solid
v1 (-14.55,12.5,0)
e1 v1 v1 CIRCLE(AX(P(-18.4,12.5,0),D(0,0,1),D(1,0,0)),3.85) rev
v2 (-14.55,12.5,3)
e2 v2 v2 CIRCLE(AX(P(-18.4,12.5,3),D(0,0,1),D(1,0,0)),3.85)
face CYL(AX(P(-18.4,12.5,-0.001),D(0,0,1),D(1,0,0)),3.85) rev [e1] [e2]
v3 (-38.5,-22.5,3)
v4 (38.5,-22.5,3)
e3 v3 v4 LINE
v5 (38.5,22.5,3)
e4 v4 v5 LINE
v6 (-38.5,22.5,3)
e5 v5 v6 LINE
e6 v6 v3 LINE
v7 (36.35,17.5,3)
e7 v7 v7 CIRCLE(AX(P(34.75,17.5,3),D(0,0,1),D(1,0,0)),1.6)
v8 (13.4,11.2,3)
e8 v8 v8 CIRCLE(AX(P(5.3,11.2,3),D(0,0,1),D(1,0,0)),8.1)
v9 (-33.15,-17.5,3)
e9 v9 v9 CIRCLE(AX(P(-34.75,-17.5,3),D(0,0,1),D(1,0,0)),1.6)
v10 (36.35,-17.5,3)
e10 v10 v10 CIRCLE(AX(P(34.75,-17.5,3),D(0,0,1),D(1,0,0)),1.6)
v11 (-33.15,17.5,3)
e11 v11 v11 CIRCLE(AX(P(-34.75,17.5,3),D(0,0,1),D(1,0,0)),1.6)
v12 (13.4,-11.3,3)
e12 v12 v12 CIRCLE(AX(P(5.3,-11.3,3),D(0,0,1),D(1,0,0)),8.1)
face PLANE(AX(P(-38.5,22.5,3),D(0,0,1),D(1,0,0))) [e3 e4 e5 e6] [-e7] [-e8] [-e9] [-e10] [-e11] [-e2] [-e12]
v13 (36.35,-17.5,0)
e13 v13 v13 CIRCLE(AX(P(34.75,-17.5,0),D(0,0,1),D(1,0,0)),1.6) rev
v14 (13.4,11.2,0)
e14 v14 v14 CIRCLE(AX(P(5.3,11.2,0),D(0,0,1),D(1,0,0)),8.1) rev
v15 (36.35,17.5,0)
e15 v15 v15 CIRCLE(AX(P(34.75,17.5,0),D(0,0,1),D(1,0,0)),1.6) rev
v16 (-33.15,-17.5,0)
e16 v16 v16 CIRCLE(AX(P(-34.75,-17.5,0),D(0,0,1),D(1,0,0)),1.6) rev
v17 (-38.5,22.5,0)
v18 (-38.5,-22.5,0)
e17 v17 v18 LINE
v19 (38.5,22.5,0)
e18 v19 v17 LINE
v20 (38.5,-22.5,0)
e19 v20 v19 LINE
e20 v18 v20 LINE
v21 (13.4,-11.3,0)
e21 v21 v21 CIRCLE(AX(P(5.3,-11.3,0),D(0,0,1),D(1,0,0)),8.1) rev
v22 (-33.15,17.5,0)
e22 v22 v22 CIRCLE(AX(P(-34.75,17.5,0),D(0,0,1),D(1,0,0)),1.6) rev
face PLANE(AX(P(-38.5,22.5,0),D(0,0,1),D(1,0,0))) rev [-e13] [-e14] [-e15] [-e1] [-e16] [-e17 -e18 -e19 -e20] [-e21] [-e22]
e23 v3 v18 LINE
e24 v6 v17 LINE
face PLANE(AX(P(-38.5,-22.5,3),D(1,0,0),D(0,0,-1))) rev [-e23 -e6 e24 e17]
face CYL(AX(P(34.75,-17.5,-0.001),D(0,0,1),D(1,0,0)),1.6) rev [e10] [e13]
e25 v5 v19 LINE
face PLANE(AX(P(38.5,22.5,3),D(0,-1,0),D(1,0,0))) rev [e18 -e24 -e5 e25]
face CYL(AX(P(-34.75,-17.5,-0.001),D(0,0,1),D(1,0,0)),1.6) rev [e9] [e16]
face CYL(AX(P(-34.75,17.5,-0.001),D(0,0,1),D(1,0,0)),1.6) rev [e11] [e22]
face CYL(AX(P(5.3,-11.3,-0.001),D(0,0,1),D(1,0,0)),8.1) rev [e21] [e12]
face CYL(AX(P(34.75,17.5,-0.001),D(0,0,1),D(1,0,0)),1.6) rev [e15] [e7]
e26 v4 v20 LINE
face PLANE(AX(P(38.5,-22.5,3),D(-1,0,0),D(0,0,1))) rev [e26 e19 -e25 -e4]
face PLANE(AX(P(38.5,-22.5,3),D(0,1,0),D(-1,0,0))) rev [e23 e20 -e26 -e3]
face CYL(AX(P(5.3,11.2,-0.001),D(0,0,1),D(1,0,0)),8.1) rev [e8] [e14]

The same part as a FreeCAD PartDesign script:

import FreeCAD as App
import Part
import Sketcher
from FreeCAD import Vector
Q = App.Units.Quantity


def add_polygon(sketch, points):
    """Adds a closed chain of lines whose ends are joined by coincident constraints."""
    first, n = sketch.GeometryCount, len(points)
    for a, b in zip(points, points[1:] + points[:1]):
        sketch.addGeometry(Part.LineSegment(App.Vector(*a, 0), App.Vector(*b, 0)), False)
    for i in range(n):
        sketch.addConstraint(Sketcher.Constraint("Coincident", first + i, 2, first + (i + 1) % n, 1))

doc = App.newDocument("Part")
params = doc.addObject("Spreadsheet::Sheet", "Params")
for row, (alias, value) in enumerate([
    ("sketch1_width", "77 mm"),
    ("sketch1_height", "45 mm"),
    ("pad1_length", "3 mm"),
    ("sketch2_diameter", "16.2 mm"),
    ("sketch3_diameter", "16.2 mm"),
    ("sketch4_diameter", "7.7 mm"),
    ("sketch5_diameter", "3.2 mm"),
    ("sketch6_diameter", "3.2 mm"),
    ("sketch7_diameter", "3.2 mm"),
    ("sketch8_diameter", "3.2 mm"),
], start=1):
    params.set(f"A{row}", alias)
    params.set(f"B{row}", "=" + value)
    params.setAlias(f"B{row}", alias)

body = doc.addObject("PartDesign::Body", "Body")

sketch1 = body.newObject("Sketcher::SketchObject", "Sketch")
sketch1.AttachmentSupport = (doc.getObject("XY_Plane"), [""])
sketch1.MapMode = "FlatFace"
add_polygon(sketch1, [(-38.5, 22.5), (-38.5, -22.5), (38.5, -22.5), (38.5, 22.5)])
sketch1.addConstraint([
    Sketcher.Constraint("Vertical", 0),
    Sketcher.Constraint("Horizontal", 1),
    Sketcher.Constraint("Vertical", 2),
    Sketcher.Constraint("Horizontal", 3),
    Sketcher.Constraint("Symmetric", 0, 2, 2, 2, -1, 1),
    Sketcher.Constraint("DistanceX", 1, 1, 1, 2, Q("77 mm")),
    Sketcher.Constraint("DistanceY", 0, 2, 0, 1, Q("45 mm")),
])
sketch1.setExpression("Constraints[9]", "Params.sketch1_width")
sketch1.setExpression("Constraints[10]", "Params.sketch1_height")
pad1 = body.newObject("PartDesign::Pad", "Pad")
pad1.Profile = sketch1
pad1.setExpression("Length", "Params.pad1_length")

sketch2 = body.newObject("Sketcher::SketchObject", "Sketch001")
sketch2.AttachmentSupport = (doc.getObject("XY_Plane"), [""])
sketch2.MapMode = "FlatFace"
sketch2.AttachmentOffset = App.Placement(Vector(0, 0, 3), App.Rotation())
sketch2.addGeometry(Part.Circle(Vector(5.3, 11.2, 0), Vector(0, 0, 1), 8.1), False)
sketch2.addConstraint([
    Sketcher.Constraint("Diameter", 0, Q("16.2 mm")),
    Sketcher.Constraint("DistanceX", -1, 1, 0, 3, Q("5.3 mm")),
    Sketcher.Constraint("DistanceY", -1, 1, 0, 3, Q("11.2 mm")),
])
sketch2.setExpression("Constraints[0]", "Params.sketch2_diameter")
pocket1 = body.newObject("PartDesign::Pocket", "Pocket")
pocket1.Profile = sketch2
pocket1.Type = "UpToFirst"

sketch3 = body.newObject("Sketcher::SketchObject", "Sketch002")
sketch3.AttachmentSupport = (doc.getObject("XY_Plane"), [""])
sketch3.MapMode = "FlatFace"
sketch3.AttachmentOffset = App.Placement(Vector(0, 0, 3), App.Rotation())
sketch3.addGeometry(Part.Circle(Vector(5.3, -11.3, 0), Vector(0, 0, 1), 8.1), False)
sketch3.addConstraint([
    Sketcher.Constraint("Diameter", 0, Q("16.2 mm")),
    Sketcher.Constraint("DistanceX", -1, 1, 0, 3, Q("5.3 mm")),
    Sketcher.Constraint("DistanceY", 0, 3, -1, 1, Q("11.3 mm")),
])
sketch3.setExpression("Constraints[0]", "Params.sketch3_diameter")
pocket2 = body.newObject("PartDesign::Pocket", "Pocket001")
pocket2.Profile = sketch3
pocket2.Type = "UpToFirst"

sketch4 = body.newObject("Sketcher::SketchObject", "Sketch003")
sketch4.AttachmentSupport = (doc.getObject("XY_Plane"), [""])
sketch4.MapMode = "FlatFace"
sketch4.AttachmentOffset = App.Placement(Vector(0, 0, 3), App.Rotation())
sketch4.addGeometry(Part.Circle(Vector(-18.4, 12.5, 0), Vector(0, 0, 1), 3.85), False)
sketch4.addConstraint([
    Sketcher.Constraint("Diameter", 0, Q("7.7 mm")),
    Sketcher.Constraint("DistanceX", 0, 3, -1, 1, Q("18.4 mm")),
    Sketcher.Constraint("DistanceY", -1, 1, 0, 3, Q("12.5 mm")),
])
sketch4.setExpression("Constraints[0]", "Params.sketch4_diameter")
pocket3 = body.newObject("PartDesign::Pocket", "Pocket002")
pocket3.Profile = sketch4
pocket3.Type = "UpToFirst"

sketch5 = body.newObject("Sketcher::SketchObject", "Sketch004")
sketch5.AttachmentSupport = (doc.getObject("XY_Plane"), [""])
sketch5.MapMode = "FlatFace"
sketch5.AttachmentOffset = App.Placement(Vector(0, 0, 3), App.Rotation())
sketch5.addGeometry(Part.Circle(Vector(-34.75, 17.5, 0), Vector(0, 0, 1), 1.6), False)
sketch5.addConstraint([
    Sketcher.Constraint("Diameter", 0, Q("3.2 mm")),
    Sketcher.Constraint("DistanceY", -1, 1, 0, 3, Q("17.5 mm")),
    Sketcher.Constraint("DistanceX", 0, 3, -1, 1, Q("34.75 mm")),
])
sketch5.setExpression("Constraints[0]", "Params.sketch5_diameter")
pocket4 = body.newObject("PartDesign::Pocket", "Pocket003")
pocket4.Profile = sketch5
pocket4.Type = "UpToFirst"

sketch6 = body.newObject("Sketcher::SketchObject", "Sketch005")
sketch6.AttachmentSupport = (doc.getObject("XY_Plane"), [""])
sketch6.MapMode = "FlatFace"
sketch6.AttachmentOffset = App.Placement(Vector(0, 0, 3), App.Rotation())
sketch6.addGeometry(Part.Circle(Vector(34.75, 17.5, 0), Vector(0, 0, 1), 1.6), False)
sketch6.addConstraint([
    Sketcher.Constraint("Diameter", 0, Q("3.2 mm")),
    Sketcher.Constraint("DistanceY", -1, 1, 0, 3, Q("17.5 mm")),
    Sketcher.Constraint("DistanceX", -1, 1, 0, 3, Q("34.75 mm")),
])
sketch6.setExpression("Constraints[0]", "Params.sketch6_diameter")
pocket5 = body.newObject("PartDesign::Pocket", "Pocket004")
pocket5.Profile = sketch6
pocket5.Type = "UpToFirst"

sketch7 = body.newObject("Sketcher::SketchObject", "Sketch006")
sketch7.AttachmentSupport = (doc.getObject("XY_Plane"), [""])
sketch7.MapMode = "FlatFace"
sketch7.AttachmentOffset = App.Placement(Vector(0, 0, 3), App.Rotation())
sketch7.addGeometry(Part.Circle(Vector(34.75, -17.5, 0), Vector(0, 0, 1), 1.6), False)
sketch7.addConstraint([
    Sketcher.Constraint("Diameter", 0, Q("3.2 mm")),
    Sketcher.Constraint("DistanceY", 0, 3, -1, 1, Q("17.5 mm")),
    Sketcher.Constraint("DistanceX", -1, 1, 0, 3, Q("34.75 mm")),
])
sketch7.setExpression("Constraints[0]", "Params.sketch7_diameter")
pocket6 = body.newObject("PartDesign::Pocket", "Pocket005")
pocket6.Profile = sketch7
pocket6.Type = "UpToFirst"

sketch8 = body.newObject("Sketcher::SketchObject", "Sketch007")
sketch8.AttachmentSupport = (doc.getObject("XY_Plane"), [""])
sketch8.MapMode = "FlatFace"
sketch8.AttachmentOffset = App.Placement(Vector(0, 0, 3), App.Rotation())
sketch8.addGeometry(Part.Circle(Vector(-34.75, -17.5, 0), Vector(0, 0, 1), 1.6), False)
sketch8.addConstraint([
    Sketcher.Constraint("Diameter", 0, Q("3.2 mm")),
    Sketcher.Constraint("DistanceY", 0, 3, -1, 1, Q("17.5 mm")),
    Sketcher.Constraint("DistanceX", 0, 3, -1, 1, Q("34.75 mm")),
])
sketch8.setExpression("Constraints[0]", "Params.sketch8_diameter")
pocket7 = body.newObject("PartDesign::Pocket", "Pocket006")
pocket7.Profile = sketch8
pocket7.Type = "UpToFirst"

doc.recompute()
